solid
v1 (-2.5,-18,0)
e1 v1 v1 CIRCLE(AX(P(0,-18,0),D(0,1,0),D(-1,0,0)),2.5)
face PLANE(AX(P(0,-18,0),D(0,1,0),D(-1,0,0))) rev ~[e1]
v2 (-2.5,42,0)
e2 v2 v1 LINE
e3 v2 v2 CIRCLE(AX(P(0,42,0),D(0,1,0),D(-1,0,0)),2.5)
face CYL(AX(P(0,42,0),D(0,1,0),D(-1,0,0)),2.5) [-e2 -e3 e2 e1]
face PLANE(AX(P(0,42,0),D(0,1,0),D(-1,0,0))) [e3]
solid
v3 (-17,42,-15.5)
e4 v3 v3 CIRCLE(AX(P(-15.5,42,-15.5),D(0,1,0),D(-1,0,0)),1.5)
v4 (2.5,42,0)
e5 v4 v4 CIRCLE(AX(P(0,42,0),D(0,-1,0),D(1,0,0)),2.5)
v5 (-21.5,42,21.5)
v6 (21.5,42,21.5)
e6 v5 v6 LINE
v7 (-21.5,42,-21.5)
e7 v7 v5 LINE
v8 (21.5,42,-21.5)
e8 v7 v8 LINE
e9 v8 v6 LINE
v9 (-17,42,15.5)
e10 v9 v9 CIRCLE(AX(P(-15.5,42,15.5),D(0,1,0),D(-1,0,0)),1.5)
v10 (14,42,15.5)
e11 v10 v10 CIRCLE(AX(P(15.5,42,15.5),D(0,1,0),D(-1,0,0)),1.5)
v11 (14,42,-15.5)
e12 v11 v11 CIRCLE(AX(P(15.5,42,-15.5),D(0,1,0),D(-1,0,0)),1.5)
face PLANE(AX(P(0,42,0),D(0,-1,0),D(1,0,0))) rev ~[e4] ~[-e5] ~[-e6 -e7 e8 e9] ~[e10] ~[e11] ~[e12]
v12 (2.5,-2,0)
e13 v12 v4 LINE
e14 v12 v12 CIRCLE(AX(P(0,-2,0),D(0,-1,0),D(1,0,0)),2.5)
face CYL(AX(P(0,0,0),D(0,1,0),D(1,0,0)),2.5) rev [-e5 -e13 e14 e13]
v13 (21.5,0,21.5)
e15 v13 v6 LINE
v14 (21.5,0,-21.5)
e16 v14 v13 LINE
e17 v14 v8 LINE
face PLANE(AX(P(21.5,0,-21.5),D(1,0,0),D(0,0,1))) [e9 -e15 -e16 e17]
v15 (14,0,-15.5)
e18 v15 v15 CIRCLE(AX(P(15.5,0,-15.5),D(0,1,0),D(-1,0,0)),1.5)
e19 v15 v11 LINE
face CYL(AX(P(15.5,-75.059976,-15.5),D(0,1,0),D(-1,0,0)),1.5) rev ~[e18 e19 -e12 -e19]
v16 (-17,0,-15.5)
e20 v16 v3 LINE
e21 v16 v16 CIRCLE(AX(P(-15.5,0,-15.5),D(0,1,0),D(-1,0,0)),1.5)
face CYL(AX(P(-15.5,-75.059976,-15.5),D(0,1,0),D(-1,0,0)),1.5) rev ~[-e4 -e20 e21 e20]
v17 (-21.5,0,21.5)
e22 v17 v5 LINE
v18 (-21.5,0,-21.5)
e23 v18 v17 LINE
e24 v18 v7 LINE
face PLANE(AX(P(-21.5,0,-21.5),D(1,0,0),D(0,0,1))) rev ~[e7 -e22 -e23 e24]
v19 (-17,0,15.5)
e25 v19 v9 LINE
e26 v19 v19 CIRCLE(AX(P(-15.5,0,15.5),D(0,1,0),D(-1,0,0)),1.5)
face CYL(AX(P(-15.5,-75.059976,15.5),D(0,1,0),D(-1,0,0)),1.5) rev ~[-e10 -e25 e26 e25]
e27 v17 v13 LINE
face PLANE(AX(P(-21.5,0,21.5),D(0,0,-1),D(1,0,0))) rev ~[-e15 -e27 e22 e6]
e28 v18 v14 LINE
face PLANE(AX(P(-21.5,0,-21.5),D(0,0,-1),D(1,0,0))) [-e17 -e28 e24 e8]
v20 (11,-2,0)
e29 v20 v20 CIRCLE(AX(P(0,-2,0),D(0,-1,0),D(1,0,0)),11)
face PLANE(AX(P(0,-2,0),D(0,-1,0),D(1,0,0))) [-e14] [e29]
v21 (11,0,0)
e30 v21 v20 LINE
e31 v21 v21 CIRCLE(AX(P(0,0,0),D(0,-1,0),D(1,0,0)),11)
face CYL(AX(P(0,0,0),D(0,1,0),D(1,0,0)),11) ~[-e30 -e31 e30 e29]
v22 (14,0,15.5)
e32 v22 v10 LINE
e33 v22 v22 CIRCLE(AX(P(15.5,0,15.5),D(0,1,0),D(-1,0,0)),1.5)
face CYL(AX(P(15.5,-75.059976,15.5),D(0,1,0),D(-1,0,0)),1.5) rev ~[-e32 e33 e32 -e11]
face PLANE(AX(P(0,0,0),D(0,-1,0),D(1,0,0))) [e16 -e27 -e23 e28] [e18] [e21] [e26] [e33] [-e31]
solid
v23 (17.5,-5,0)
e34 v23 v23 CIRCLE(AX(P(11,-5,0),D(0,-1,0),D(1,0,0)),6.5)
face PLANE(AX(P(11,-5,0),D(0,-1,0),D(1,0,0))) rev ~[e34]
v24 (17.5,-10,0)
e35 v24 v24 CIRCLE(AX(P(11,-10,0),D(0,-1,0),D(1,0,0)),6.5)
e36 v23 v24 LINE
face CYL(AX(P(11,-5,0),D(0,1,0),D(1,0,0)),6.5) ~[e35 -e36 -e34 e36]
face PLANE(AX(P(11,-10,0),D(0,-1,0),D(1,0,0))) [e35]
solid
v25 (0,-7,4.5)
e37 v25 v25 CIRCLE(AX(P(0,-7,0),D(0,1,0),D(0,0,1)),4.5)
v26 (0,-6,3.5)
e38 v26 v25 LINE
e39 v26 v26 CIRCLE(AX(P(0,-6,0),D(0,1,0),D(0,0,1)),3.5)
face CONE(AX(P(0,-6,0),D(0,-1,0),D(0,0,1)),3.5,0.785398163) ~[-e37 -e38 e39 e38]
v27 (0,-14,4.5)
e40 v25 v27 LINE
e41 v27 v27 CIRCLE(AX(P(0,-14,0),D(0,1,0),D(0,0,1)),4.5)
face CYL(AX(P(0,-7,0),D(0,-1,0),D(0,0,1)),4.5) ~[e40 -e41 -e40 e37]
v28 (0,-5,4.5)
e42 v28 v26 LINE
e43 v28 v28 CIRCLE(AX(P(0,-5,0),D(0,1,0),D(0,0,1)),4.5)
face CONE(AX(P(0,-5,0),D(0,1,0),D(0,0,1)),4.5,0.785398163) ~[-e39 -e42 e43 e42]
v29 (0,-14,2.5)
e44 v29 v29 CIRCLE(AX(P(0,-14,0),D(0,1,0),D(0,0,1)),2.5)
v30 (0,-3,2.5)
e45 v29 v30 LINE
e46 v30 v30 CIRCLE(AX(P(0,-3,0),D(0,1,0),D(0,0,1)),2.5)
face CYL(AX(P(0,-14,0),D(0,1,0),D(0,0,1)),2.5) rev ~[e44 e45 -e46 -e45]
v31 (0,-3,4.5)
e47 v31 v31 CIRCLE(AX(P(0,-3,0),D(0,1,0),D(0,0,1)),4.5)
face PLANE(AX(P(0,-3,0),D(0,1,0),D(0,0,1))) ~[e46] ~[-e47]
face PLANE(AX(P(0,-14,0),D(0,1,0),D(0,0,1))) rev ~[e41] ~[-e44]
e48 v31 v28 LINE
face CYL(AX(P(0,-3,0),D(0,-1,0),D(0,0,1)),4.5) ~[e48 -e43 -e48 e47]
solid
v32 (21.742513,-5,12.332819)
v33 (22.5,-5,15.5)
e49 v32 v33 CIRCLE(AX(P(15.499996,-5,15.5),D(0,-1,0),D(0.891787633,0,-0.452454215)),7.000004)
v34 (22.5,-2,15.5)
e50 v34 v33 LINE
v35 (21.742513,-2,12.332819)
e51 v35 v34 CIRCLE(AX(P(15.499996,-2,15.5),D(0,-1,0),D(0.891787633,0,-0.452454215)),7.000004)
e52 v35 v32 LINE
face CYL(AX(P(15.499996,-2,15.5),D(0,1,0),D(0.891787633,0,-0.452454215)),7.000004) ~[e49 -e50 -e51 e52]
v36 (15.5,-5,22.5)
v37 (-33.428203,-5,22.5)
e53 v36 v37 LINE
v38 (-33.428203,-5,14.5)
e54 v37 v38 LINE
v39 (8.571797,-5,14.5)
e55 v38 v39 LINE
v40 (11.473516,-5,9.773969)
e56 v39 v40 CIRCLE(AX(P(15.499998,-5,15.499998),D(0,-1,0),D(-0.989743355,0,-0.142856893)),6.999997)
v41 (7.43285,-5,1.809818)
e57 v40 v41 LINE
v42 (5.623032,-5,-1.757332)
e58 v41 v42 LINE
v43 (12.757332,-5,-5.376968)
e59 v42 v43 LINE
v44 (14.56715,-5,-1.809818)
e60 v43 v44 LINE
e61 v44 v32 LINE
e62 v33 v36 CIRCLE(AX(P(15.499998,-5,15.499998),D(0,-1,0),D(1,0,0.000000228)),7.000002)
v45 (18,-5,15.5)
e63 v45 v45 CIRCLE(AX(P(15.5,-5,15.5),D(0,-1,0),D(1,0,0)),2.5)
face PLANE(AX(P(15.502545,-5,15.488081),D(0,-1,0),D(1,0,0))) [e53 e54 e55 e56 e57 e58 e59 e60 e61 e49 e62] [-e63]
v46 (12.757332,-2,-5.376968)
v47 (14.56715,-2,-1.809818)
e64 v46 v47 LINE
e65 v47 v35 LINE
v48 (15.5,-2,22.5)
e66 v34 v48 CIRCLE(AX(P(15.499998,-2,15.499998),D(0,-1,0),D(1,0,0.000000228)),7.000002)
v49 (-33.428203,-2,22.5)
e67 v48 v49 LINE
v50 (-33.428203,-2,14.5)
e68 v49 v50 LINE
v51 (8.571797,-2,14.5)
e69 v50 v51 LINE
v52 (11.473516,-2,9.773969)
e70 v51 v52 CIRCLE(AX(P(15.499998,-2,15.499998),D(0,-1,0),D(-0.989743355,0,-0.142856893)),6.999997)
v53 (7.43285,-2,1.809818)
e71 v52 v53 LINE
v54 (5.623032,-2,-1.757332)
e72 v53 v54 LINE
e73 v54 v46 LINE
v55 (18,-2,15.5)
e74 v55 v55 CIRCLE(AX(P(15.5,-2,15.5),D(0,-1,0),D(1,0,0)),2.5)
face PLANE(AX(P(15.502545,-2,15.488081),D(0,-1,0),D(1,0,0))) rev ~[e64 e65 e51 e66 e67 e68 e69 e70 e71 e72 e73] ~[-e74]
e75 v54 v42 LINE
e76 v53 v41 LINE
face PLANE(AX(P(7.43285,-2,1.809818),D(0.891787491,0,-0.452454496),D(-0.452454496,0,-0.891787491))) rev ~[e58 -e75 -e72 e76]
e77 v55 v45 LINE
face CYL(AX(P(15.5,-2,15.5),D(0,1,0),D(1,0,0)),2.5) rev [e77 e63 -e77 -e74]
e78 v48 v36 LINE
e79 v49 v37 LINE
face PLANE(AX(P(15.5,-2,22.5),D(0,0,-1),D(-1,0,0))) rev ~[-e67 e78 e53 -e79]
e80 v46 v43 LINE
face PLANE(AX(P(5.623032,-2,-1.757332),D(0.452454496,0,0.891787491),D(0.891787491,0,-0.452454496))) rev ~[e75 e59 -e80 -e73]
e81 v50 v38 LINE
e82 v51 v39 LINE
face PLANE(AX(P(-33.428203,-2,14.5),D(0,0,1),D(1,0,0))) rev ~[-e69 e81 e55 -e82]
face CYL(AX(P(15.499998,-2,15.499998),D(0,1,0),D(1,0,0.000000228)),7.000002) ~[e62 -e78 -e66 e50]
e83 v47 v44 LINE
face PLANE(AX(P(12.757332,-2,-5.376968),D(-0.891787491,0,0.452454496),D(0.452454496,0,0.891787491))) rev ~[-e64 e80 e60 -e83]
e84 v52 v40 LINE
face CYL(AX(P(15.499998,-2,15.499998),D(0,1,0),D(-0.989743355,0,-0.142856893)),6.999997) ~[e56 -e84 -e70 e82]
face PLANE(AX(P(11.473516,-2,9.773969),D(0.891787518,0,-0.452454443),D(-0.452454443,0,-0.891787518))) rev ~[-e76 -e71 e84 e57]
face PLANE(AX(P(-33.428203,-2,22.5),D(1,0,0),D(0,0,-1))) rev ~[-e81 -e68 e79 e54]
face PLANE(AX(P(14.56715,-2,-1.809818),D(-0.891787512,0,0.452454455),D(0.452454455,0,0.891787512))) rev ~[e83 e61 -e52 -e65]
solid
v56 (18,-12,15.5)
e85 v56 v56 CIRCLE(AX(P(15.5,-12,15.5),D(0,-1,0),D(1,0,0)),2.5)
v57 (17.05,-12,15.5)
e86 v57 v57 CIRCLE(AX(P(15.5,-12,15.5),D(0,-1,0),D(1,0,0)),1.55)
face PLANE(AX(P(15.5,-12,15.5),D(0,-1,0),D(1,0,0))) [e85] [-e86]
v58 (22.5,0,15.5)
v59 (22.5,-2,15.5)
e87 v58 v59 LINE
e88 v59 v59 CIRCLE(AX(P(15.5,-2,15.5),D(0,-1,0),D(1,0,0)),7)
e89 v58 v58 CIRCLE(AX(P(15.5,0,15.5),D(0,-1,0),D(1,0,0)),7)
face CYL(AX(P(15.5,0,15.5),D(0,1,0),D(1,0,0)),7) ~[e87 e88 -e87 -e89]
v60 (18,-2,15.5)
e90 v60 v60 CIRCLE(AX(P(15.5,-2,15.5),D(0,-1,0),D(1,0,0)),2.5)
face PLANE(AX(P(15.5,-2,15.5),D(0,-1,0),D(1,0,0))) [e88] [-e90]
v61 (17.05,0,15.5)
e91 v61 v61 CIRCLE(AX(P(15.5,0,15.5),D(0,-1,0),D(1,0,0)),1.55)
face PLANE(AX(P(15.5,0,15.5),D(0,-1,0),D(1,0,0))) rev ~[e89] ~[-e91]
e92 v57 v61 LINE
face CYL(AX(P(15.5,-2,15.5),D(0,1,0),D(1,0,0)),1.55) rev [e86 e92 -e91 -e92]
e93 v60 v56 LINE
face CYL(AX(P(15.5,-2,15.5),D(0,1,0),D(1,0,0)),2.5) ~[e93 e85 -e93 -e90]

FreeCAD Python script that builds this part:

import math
import FreeCAD as App
import Part
import Sketcher

V = App.Vector


def add_polygon(sketch, points):
    """Adds a closed chain of lines whose ends are joined by coincident constraints."""
    first, n = sketch.GeometryCount, len(points)
    for a, b in zip(points, points[1:] + points[:1]):
        sketch.addGeometry(Part.LineSegment(App.Vector(*a, 0), App.Vector(*b, 0)), False)
    for i in range(n):
        sketch.addConstraint(Sketcher.Constraint("Coincident", first + i, 2, first + (i + 1) % n, 1))

doc = App.newDocument("Part")
body = doc.addObject("PartDesign::Body", "Body")

sketch1 = body.newObject("Sketcher::SketchObject", "Sketch")
sketch1.AttachmentSupport = (doc.getObject("XZ_Plane"), [""])
sketch1.MapMode = "FlatFace"
add_polygon(sketch1, [(-21.5, 21.5), (-21.5, -21.5), (21.5, -21.5), (21.5, 21.5)])
sketch1.addGeometry(Part.Circle(V(0, 0, 0), V(0, 0, 1), 2.5), False)
sketch1.addConstraint(Sketcher.Constraint("Vertical", 0))
sketch1.addConstraint(Sketcher.Constraint("Horizontal", 1))
sketch1.addConstraint(Sketcher.Constraint("Vertical", 2))
sketch1.addConstraint(Sketcher.Constraint("Horizontal", 3))
sketch1.addConstraint(Sketcher.Constraint("Coincident", 4, 3, -1, 1))
sketch1.addConstraint(Sketcher.Constraint("Symmetric", 0, 2, 2, 2, -1, 1))
sketch1.addConstraint(Sketcher.Constraint("Equal", 3, 0))
sketch1.addConstraint(Sketcher.Constraint("Diameter", 4, 5.0))
sketch1.addConstraint(Sketcher.Constraint("DistanceX", 1, 1, 1, 2, 43.0))
pad1 = body.newObject("PartDesign::Pad", "Pad")
pad1.Profile = sketch1
pad1.Length = 42
pad1.Reversed = True

sketch2 = body.newObject("Sketcher::SketchObject", "Sketch001")
sketch2.AttachmentSupport = (doc.getObject("XZ_Plane"), [""])
sketch2.MapMode = "FlatFace"
sketch2.addGeometry(Part.Circle(V(0, 0, 0), V(0, 0, 1), 11), False)
sketch2.addGeometry(Part.Circle(V(0, 0, 0), V(0, 0, 1), 2.5), False)
sketch2.addConstraint(Sketcher.Constraint("Coincident", 0, 3, -1, 1))
sketch2.addConstraint(Sketcher.Constraint("Coincident", 1, 3, -1, 1))
sketch2.addConstraint(Sketcher.Constraint("Diameter", 0, 22.0))
sketch2.addConstraint(Sketcher.Constraint("Diameter", 1, 5.0))
pad2 = body.newObject("PartDesign::Pad", "Pad001")
pad2.Profile = sketch2
pad2.Length = 2

sketch3 = body.newObject("Sketcher::SketchObject", "Sketch002")
sketch3.AttachmentSupport = (doc.getObject("XZ_Plane"), [""])
sketch3.MapMode = "FlatFace"
sketch3.addGeometry(Part.Circle(V(-15.5, 15.5, 0), V(0, 0, 1), 1.5), False)
sketch3.addGeometry(Part.Circle(V(15.5, 15.5, 0), V(0, 0, 1), 1.5), False)
sketch3.addGeometry(Part.Circle(V(15.5, -15.5, 0), V(0, 0, 1), 1.5), False)
sketch3.addGeometry(Part.Circle(V(-15.5, -15.5, 0), V(0, 0, 1), 1.5), False)
sketch3.addConstraint(Sketcher.Constraint("Equal", 0, 1))
sketch3.addConstraint(Sketcher.Constraint("Equal", 1, 2))
sketch3.addConstraint(Sketcher.Constraint("Equal", 2, 3))
sketch3.addConstraint(Sketcher.Constraint("Symmetric", 0, 3, 2, 3, -1, 1))
sketch3.addConstraint(Sketcher.Constraint("Symmetric", 1, 3, 3, 3, -1, 1))
sketch3.addConstraint(Sketcher.Constraint("Symmetric", 0, 3, 1, 3, -2))
sketch3.addConstraint(Sketcher.Constraint("Diameter", 0, 3.0))
sketch3.addConstraint(Sketcher.Constraint("DistanceX", 0, 3, 1, 3, 31.0))
sketch3.addConstraint(Sketcher.Constraint("DistanceY", 2, 3, 1, 3, 31.0))
doc.recompute()
hole = body.newObject("PartDesign::Hole", "Hole")
hole.Profile = sketch3
hole.ThreadType = "None"
hole.Diameter = 3
hole.DepthType = "ThroughAll"
body2 = doc.addObject("PartDesign::Body", "Body001")

sketch4 = body2.newObject("Sketcher::SketchObject", "Sketch003")
sketch4.AttachmentSupport = (doc.getObject("XZ_Plane001"), [""])
sketch4.MapMode = "FlatFace"
sketch4.AttachmentOffset = App.Placement(V(0, 0, -42), App.Rotation())
sketch4.addGeometry(Part.Circle(V(0, 0, 0), V(0, 0, 1), 2.5), False)
sketch4.addConstraint(Sketcher.Constraint("Coincident", 0, 3, -1, 1))
sketch4.addConstraint(Sketcher.Constraint("Diameter", 0, 5.0))
pad3 = body2.newObject("PartDesign::Pad", "Pad002")
pad3.Profile = sketch4
pad3.Length = 60
body3 = doc.addObject("PartDesign::Body", "Body002")

sketch5 = body3.newObject("Sketcher::SketchObject", "Sketch004")
sketch5.AttachmentSupport = (doc.getObject("YZ_Plane002"), [""])
sketch5.MapMode = "FlatFace"
add_polygon(sketch5, [(-14, 2.5), (-3, 2.5), (-3, 4.5), (-5, 4.5), (-6, 3.5), (-7, 4.5), (-14, 4.5)])
sketch5.addConstraint(Sketcher.Constraint("Horizontal", 0))
sketch5.addConstraint(Sketcher.Constraint("Vertical", 1))
sketch5.addConstraint(Sketcher.Constraint("Horizontal", 2))
sketch5.addConstraint(Sketcher.Constraint("Horizontal", 5))
sketch5.addConstraint(Sketcher.Constraint("Vertical", 6))
sketch5.addConstraint(Sketcher.Constraint("Perpendicular", 3, 4))
sketch5.addConstraint(Sketcher.Constraint("Horizontal", 2, 2, 4, 2))
sketch5.addConstraint(Sketcher.Constraint("Equal", 2, 1))
sketch5.addConstraint(Sketcher.Constraint("Equal", 3, 4))
sketch5.addConstraint(Sketcher.Constraint("DistanceX", 0, 1, 0, 2, 11.0))
sketch5.addConstraint(Sketcher.Constraint("DistanceX", 2, 2, 2, 1, 2.0))
sketch5.addConstraint(Sketcher.Constraint("DistanceX", 5, 2, 5, 1, 7.0))
sketch5.addConstraint(Sketcher.Constraint("DistanceX", 0, 2, -1, 1, 3.0))
sketch5.addConstraint(Sketcher.Constraint("DistanceY", -1, 1, 0, 2, 2.5))
revolution = body3.newObject("PartDesign::Revolution", "Revolution")
revolution.Profile = sketch5
revolution.ReferenceAxis = (sketch5, ["H_Axis"])
revolution.Angle = 360
body4 = doc.addObject("PartDesign::Body", "Body003")

sketch6 = body4.newObject("Sketcher::SketchObject", "Sketch005")
sketch6.AttachmentSupport = (doc.getObject("XZ_Plane003"), [""])
sketch6.MapMode = "FlatFace"
sketch6.addGeometry(Part.Circle(V(15.5, 15.5, 0), V(0, 0, 1), 7), False)
sketch6.addGeometry(Part.Circle(V(15.5, 15.5, 0), V(0, 0, 1), 1.55), False)
sketch6.addConstraint(Sketcher.Constraint("Coincident", 1, 3, 0, 3))
sketch6.addConstraint(Sketcher.Constraint("Diameter", 0, 14.0))
sketch6.addConstraint(Sketcher.Constraint("Diameter", 1, 3.1))
sketch6.addConstraint(Sketcher.Constraint("DistanceX", -1, 1, 0, 3, 15.5))
sketch6.addConstraint(Sketcher.Constraint("DistanceY", -1, 1, 0, 3, 15.5))
pad4 = body4.newObject("PartDesign::Pad", "Pad003")
pad4.Profile = sketch6
pad4.Length = 2

sketch7 = body4.newObject("Sketcher::SketchObject", "Sketch006")
sketch7.AttachmentSupport = (doc.getObject("XZ_Plane003"), [""])
sketch7.MapMode = "FlatFace"
sketch7.AttachmentOffset = App.Placement(V(0, 0, 2), App.Rotation())
sketch7.addGeometry(Part.Circle(V(15.5, 15.5, 0), V(0, 0, 1), 2.5), False)
sketch7.addGeometry(Part.Circle(V(15.5, 15.5, 0), V(0, 0, 1), 1.55), False)
sketch7.addConstraint(Sketcher.Constraint("Coincident", 1, 3, 0, 3))
sketch7.addConstraint(Sketcher.Constraint("Diameter", 0, 5.0))
sketch7.addConstraint(Sketcher.Constraint("Diameter", 1, 3.1))
sketch7.addConstraint(Sketcher.Constraint("DistanceX", -1, 1, 0, 3, 15.5))
sketch7.addConstraint(Sketcher.Constraint("DistanceY", -1, 1, 0, 3, 15.5))
pad5 = body4.newObject("PartDesign::Pad", "Pad004")
pad5.Profile = sketch7
pad5.Length = 10
body5 = doc.addObject("PartDesign::Body", "Body004")

sketch8 = body5.newObject("Sketcher::SketchObject", "Sketch007")
sketch8.AttachmentSupport = (doc.getObject("XZ_Plane004"), [""])
sketch8.MapMode = "FlatFace"
sketch8.AttachmentOffset = App.Placement(V(0, 0, 2), App.Rotation())
sketch8.addGeometry(Part.ArcOfCircle(Part.Circle(V(15.499996, 15.5, 0), V(0, 0, 1), 7.000004), math.radians(-26.901253), math.radians(-0.000003)), False)
sketch8.addGeometry(Part.ArcOfCircle(Part.Circle(V(15.499998, 15.499998, 0), V(0, 0, 1), 7.000002), math.radians(0.000013), math.radians(89.999987)), False)
sketch8.addGeometry(Part.LineSegment(V(15.5, 22.5, 0), V(-33.428203, 22.5, 0)), False)
sketch8.addGeometry(Part.LineSegment(V(-33.428203, 22.5, 0), V(-33.428203, 14.5, 0)), False)
sketch8.addGeometry(Part.LineSegment(V(-33.428203, 14.5, 0), V(8.571797, 14.5, 0)), False)
sketch8.addGeometry(Part.ArcOfCircle(Part.Circle(V(15.499998, 15.499998, 0), V(0, 0, 1), 6.999997), math.radians(-171.786804), math.radians(-125.114474)), False)
sketch8.addGeometry(Part.LineSegment(V(11.473516, 9.773969, 0), V(7.43285, 1.809818, 0)), False)
sketch8.addGeometry(Part.LineSegment(V(7.43285, 1.809818, 0), V(5.623032, -1.757332, 0)), False)
sketch8.addGeometry(Part.LineSegment(V(5.623032, -1.757332, 0), V(12.757332, -5.376968, 0)), False)
sketch8.addGeometry(Part.LineSegment(V(12.757332, -5.376968, 0), V(14.56715, -1.809818, 0)), False)
sketch8.addGeometry(Part.LineSegment(V(14.56715, -1.809818, 0), V(21.742513, 12.332819, 0)), False)
sketch8.addGeometry(Part.Circle(V(15.5, 15.5, 0), V(0, 0, 1), 2.5), False)
sketch8.addConstraint(Sketcher.Constraint("Tangent", 0, 2, 1, 1))
sketch8.addConstraint(Sketcher.Constraint("Tangent", 1, 2, 2, 1))
sketch8.addConstraint(Sketcher.Constraint("Coincident", 2, 2, 3, 1))
sketch8.addConstraint(Sketcher.Constraint("Coincident", 3, 2, 4, 1))
sketch8.addConstraint(Sketcher.Constraint("Coincident", 4, 2, 5, 1))
sketch8.addConstraint(Sketcher.Constraint("Coincident", 5, 2, 6, 1))
sketch8.addConstraint(Sketcher.Constraint("Coincident", 6, 2, 7, 1))
sketch8.addConstraint(Sketcher.Constraint("Coincident", 7, 2, 8, 1))
sketch8.addConstraint(Sketcher.Constraint("Coincident", 8, 2, 9, 1))
sketch8.addConstraint(Sketcher.Constraint("Coincident", 9, 2, 10, 1))
sketch8.addConstraint(Sketcher.Constraint("Tangent", 10, 2, 0, 1))
sketch8.addConstraint(Sketcher.Constraint("Horizontal", 2))
sketch8.addConstraint(Sketcher.Constraint("Vertical", 3))
sketch8.addConstraint(Sketcher.Constraint("Horizontal", 4))
sketch8.addConstraint(Sketcher.Constraint("Coincident", 5, 3, 0, 3))
sketch8.addConstraint(Sketcher.Constraint("Coincident", 11, 3, 0, 3))
sketch8.addConstraint(Sketcher.Constraint("Parallel", 6, 7))
sketch8.addConstraint(Sketcher.Constraint("Perpendicular", 7, 8))
sketch8.addConstraint(Sketcher.Constraint("Perpendicular", 8, 9))
sketch8.addConstraint(Sketcher.Constraint("Parallel", 9, 10))
sketch8.addConstraint(Sketcher.Constraint("Horizontal", 11, 3, 0, 2))
sketch8.addConstraint(Sketcher.Constraint("Vertical", 11, 3, 1, 2))
sketch8.addConstraint(Sketcher.Constraint("Equal", 7, 9))
sketch8.addConstraint(Sketcher.Constraint("Diameter", 11, 5.0))
sketch8.addConstraint(Sketcher.Constraint("Radius", 1, 7.000002))
sketch8.addConstraint(Sketcher.Constraint("DistanceX", 4, 1, 4, 2, 42.0))
sketch8.addConstraint(Sketcher.Constraint("DistanceY", 3, 2, 3, 1, 8.0))
sketch8.addConstraint(Sketcher.Constraint("Distance", 7, 4.0))
sketch8.addConstraint(Sketcher.Constraint("Distance", 8, 8.0))
sketch8.addConstraint(Sketcher.Constraint("DistanceY", -1, 1, 0, 3, 15.5))
sketch8.addConstraint(Sketcher.Constraint("DistanceX", -1, 1, 1, 3, 15.499998))
sketch8.addConstraint(Sketcher.Constraint("Radius", 5, 6.999997))
sketch8.addConstraint(Sketcher.Constraint("DistanceY", 7, 2, 5, 2, 11.531301))
sketch8.addConstraint(Sketcher.Constraint("DistanceX", 7, 2, 8, 2, 7.1343))
pad6 = body5.newObject("PartDesign::Pad", "Pad005")
pad6.Profile = sketch8
pad6.Length = 3
body6 = doc.addObject("PartDesign::Body", "Body005")

sketch9 = body6.newObject("Sketcher::SketchObject", "Sketch008")
sketch9.AttachmentSupport = (doc.getObject("XZ_Plane005"), [""])
sketch9.MapMode = "FlatFace"
sketch9.AttachmentOffset = App.Placement(V(0, 0, 5), App.Rotation())
sketch9.addGeometry(Part.Circle(V(11, 0, 0), V(0, 0, 1), 6.5), False)
sketch9.addConstraint(Sketcher.Constraint("PointOnObject", 0, 3, -1))
sketch9.addConstraint(Sketcher.Constraint("Diameter", 0, 13.0))
sketch9.addConstraint(Sketcher.Constraint("DistanceX", -1, 1, 0, 3, 11.0))
pad7 = body6.newObject("PartDesign::Pad", "Pad006")
pad7.Profile = sketch9
pad7.Length = 5

doc.recompute()
